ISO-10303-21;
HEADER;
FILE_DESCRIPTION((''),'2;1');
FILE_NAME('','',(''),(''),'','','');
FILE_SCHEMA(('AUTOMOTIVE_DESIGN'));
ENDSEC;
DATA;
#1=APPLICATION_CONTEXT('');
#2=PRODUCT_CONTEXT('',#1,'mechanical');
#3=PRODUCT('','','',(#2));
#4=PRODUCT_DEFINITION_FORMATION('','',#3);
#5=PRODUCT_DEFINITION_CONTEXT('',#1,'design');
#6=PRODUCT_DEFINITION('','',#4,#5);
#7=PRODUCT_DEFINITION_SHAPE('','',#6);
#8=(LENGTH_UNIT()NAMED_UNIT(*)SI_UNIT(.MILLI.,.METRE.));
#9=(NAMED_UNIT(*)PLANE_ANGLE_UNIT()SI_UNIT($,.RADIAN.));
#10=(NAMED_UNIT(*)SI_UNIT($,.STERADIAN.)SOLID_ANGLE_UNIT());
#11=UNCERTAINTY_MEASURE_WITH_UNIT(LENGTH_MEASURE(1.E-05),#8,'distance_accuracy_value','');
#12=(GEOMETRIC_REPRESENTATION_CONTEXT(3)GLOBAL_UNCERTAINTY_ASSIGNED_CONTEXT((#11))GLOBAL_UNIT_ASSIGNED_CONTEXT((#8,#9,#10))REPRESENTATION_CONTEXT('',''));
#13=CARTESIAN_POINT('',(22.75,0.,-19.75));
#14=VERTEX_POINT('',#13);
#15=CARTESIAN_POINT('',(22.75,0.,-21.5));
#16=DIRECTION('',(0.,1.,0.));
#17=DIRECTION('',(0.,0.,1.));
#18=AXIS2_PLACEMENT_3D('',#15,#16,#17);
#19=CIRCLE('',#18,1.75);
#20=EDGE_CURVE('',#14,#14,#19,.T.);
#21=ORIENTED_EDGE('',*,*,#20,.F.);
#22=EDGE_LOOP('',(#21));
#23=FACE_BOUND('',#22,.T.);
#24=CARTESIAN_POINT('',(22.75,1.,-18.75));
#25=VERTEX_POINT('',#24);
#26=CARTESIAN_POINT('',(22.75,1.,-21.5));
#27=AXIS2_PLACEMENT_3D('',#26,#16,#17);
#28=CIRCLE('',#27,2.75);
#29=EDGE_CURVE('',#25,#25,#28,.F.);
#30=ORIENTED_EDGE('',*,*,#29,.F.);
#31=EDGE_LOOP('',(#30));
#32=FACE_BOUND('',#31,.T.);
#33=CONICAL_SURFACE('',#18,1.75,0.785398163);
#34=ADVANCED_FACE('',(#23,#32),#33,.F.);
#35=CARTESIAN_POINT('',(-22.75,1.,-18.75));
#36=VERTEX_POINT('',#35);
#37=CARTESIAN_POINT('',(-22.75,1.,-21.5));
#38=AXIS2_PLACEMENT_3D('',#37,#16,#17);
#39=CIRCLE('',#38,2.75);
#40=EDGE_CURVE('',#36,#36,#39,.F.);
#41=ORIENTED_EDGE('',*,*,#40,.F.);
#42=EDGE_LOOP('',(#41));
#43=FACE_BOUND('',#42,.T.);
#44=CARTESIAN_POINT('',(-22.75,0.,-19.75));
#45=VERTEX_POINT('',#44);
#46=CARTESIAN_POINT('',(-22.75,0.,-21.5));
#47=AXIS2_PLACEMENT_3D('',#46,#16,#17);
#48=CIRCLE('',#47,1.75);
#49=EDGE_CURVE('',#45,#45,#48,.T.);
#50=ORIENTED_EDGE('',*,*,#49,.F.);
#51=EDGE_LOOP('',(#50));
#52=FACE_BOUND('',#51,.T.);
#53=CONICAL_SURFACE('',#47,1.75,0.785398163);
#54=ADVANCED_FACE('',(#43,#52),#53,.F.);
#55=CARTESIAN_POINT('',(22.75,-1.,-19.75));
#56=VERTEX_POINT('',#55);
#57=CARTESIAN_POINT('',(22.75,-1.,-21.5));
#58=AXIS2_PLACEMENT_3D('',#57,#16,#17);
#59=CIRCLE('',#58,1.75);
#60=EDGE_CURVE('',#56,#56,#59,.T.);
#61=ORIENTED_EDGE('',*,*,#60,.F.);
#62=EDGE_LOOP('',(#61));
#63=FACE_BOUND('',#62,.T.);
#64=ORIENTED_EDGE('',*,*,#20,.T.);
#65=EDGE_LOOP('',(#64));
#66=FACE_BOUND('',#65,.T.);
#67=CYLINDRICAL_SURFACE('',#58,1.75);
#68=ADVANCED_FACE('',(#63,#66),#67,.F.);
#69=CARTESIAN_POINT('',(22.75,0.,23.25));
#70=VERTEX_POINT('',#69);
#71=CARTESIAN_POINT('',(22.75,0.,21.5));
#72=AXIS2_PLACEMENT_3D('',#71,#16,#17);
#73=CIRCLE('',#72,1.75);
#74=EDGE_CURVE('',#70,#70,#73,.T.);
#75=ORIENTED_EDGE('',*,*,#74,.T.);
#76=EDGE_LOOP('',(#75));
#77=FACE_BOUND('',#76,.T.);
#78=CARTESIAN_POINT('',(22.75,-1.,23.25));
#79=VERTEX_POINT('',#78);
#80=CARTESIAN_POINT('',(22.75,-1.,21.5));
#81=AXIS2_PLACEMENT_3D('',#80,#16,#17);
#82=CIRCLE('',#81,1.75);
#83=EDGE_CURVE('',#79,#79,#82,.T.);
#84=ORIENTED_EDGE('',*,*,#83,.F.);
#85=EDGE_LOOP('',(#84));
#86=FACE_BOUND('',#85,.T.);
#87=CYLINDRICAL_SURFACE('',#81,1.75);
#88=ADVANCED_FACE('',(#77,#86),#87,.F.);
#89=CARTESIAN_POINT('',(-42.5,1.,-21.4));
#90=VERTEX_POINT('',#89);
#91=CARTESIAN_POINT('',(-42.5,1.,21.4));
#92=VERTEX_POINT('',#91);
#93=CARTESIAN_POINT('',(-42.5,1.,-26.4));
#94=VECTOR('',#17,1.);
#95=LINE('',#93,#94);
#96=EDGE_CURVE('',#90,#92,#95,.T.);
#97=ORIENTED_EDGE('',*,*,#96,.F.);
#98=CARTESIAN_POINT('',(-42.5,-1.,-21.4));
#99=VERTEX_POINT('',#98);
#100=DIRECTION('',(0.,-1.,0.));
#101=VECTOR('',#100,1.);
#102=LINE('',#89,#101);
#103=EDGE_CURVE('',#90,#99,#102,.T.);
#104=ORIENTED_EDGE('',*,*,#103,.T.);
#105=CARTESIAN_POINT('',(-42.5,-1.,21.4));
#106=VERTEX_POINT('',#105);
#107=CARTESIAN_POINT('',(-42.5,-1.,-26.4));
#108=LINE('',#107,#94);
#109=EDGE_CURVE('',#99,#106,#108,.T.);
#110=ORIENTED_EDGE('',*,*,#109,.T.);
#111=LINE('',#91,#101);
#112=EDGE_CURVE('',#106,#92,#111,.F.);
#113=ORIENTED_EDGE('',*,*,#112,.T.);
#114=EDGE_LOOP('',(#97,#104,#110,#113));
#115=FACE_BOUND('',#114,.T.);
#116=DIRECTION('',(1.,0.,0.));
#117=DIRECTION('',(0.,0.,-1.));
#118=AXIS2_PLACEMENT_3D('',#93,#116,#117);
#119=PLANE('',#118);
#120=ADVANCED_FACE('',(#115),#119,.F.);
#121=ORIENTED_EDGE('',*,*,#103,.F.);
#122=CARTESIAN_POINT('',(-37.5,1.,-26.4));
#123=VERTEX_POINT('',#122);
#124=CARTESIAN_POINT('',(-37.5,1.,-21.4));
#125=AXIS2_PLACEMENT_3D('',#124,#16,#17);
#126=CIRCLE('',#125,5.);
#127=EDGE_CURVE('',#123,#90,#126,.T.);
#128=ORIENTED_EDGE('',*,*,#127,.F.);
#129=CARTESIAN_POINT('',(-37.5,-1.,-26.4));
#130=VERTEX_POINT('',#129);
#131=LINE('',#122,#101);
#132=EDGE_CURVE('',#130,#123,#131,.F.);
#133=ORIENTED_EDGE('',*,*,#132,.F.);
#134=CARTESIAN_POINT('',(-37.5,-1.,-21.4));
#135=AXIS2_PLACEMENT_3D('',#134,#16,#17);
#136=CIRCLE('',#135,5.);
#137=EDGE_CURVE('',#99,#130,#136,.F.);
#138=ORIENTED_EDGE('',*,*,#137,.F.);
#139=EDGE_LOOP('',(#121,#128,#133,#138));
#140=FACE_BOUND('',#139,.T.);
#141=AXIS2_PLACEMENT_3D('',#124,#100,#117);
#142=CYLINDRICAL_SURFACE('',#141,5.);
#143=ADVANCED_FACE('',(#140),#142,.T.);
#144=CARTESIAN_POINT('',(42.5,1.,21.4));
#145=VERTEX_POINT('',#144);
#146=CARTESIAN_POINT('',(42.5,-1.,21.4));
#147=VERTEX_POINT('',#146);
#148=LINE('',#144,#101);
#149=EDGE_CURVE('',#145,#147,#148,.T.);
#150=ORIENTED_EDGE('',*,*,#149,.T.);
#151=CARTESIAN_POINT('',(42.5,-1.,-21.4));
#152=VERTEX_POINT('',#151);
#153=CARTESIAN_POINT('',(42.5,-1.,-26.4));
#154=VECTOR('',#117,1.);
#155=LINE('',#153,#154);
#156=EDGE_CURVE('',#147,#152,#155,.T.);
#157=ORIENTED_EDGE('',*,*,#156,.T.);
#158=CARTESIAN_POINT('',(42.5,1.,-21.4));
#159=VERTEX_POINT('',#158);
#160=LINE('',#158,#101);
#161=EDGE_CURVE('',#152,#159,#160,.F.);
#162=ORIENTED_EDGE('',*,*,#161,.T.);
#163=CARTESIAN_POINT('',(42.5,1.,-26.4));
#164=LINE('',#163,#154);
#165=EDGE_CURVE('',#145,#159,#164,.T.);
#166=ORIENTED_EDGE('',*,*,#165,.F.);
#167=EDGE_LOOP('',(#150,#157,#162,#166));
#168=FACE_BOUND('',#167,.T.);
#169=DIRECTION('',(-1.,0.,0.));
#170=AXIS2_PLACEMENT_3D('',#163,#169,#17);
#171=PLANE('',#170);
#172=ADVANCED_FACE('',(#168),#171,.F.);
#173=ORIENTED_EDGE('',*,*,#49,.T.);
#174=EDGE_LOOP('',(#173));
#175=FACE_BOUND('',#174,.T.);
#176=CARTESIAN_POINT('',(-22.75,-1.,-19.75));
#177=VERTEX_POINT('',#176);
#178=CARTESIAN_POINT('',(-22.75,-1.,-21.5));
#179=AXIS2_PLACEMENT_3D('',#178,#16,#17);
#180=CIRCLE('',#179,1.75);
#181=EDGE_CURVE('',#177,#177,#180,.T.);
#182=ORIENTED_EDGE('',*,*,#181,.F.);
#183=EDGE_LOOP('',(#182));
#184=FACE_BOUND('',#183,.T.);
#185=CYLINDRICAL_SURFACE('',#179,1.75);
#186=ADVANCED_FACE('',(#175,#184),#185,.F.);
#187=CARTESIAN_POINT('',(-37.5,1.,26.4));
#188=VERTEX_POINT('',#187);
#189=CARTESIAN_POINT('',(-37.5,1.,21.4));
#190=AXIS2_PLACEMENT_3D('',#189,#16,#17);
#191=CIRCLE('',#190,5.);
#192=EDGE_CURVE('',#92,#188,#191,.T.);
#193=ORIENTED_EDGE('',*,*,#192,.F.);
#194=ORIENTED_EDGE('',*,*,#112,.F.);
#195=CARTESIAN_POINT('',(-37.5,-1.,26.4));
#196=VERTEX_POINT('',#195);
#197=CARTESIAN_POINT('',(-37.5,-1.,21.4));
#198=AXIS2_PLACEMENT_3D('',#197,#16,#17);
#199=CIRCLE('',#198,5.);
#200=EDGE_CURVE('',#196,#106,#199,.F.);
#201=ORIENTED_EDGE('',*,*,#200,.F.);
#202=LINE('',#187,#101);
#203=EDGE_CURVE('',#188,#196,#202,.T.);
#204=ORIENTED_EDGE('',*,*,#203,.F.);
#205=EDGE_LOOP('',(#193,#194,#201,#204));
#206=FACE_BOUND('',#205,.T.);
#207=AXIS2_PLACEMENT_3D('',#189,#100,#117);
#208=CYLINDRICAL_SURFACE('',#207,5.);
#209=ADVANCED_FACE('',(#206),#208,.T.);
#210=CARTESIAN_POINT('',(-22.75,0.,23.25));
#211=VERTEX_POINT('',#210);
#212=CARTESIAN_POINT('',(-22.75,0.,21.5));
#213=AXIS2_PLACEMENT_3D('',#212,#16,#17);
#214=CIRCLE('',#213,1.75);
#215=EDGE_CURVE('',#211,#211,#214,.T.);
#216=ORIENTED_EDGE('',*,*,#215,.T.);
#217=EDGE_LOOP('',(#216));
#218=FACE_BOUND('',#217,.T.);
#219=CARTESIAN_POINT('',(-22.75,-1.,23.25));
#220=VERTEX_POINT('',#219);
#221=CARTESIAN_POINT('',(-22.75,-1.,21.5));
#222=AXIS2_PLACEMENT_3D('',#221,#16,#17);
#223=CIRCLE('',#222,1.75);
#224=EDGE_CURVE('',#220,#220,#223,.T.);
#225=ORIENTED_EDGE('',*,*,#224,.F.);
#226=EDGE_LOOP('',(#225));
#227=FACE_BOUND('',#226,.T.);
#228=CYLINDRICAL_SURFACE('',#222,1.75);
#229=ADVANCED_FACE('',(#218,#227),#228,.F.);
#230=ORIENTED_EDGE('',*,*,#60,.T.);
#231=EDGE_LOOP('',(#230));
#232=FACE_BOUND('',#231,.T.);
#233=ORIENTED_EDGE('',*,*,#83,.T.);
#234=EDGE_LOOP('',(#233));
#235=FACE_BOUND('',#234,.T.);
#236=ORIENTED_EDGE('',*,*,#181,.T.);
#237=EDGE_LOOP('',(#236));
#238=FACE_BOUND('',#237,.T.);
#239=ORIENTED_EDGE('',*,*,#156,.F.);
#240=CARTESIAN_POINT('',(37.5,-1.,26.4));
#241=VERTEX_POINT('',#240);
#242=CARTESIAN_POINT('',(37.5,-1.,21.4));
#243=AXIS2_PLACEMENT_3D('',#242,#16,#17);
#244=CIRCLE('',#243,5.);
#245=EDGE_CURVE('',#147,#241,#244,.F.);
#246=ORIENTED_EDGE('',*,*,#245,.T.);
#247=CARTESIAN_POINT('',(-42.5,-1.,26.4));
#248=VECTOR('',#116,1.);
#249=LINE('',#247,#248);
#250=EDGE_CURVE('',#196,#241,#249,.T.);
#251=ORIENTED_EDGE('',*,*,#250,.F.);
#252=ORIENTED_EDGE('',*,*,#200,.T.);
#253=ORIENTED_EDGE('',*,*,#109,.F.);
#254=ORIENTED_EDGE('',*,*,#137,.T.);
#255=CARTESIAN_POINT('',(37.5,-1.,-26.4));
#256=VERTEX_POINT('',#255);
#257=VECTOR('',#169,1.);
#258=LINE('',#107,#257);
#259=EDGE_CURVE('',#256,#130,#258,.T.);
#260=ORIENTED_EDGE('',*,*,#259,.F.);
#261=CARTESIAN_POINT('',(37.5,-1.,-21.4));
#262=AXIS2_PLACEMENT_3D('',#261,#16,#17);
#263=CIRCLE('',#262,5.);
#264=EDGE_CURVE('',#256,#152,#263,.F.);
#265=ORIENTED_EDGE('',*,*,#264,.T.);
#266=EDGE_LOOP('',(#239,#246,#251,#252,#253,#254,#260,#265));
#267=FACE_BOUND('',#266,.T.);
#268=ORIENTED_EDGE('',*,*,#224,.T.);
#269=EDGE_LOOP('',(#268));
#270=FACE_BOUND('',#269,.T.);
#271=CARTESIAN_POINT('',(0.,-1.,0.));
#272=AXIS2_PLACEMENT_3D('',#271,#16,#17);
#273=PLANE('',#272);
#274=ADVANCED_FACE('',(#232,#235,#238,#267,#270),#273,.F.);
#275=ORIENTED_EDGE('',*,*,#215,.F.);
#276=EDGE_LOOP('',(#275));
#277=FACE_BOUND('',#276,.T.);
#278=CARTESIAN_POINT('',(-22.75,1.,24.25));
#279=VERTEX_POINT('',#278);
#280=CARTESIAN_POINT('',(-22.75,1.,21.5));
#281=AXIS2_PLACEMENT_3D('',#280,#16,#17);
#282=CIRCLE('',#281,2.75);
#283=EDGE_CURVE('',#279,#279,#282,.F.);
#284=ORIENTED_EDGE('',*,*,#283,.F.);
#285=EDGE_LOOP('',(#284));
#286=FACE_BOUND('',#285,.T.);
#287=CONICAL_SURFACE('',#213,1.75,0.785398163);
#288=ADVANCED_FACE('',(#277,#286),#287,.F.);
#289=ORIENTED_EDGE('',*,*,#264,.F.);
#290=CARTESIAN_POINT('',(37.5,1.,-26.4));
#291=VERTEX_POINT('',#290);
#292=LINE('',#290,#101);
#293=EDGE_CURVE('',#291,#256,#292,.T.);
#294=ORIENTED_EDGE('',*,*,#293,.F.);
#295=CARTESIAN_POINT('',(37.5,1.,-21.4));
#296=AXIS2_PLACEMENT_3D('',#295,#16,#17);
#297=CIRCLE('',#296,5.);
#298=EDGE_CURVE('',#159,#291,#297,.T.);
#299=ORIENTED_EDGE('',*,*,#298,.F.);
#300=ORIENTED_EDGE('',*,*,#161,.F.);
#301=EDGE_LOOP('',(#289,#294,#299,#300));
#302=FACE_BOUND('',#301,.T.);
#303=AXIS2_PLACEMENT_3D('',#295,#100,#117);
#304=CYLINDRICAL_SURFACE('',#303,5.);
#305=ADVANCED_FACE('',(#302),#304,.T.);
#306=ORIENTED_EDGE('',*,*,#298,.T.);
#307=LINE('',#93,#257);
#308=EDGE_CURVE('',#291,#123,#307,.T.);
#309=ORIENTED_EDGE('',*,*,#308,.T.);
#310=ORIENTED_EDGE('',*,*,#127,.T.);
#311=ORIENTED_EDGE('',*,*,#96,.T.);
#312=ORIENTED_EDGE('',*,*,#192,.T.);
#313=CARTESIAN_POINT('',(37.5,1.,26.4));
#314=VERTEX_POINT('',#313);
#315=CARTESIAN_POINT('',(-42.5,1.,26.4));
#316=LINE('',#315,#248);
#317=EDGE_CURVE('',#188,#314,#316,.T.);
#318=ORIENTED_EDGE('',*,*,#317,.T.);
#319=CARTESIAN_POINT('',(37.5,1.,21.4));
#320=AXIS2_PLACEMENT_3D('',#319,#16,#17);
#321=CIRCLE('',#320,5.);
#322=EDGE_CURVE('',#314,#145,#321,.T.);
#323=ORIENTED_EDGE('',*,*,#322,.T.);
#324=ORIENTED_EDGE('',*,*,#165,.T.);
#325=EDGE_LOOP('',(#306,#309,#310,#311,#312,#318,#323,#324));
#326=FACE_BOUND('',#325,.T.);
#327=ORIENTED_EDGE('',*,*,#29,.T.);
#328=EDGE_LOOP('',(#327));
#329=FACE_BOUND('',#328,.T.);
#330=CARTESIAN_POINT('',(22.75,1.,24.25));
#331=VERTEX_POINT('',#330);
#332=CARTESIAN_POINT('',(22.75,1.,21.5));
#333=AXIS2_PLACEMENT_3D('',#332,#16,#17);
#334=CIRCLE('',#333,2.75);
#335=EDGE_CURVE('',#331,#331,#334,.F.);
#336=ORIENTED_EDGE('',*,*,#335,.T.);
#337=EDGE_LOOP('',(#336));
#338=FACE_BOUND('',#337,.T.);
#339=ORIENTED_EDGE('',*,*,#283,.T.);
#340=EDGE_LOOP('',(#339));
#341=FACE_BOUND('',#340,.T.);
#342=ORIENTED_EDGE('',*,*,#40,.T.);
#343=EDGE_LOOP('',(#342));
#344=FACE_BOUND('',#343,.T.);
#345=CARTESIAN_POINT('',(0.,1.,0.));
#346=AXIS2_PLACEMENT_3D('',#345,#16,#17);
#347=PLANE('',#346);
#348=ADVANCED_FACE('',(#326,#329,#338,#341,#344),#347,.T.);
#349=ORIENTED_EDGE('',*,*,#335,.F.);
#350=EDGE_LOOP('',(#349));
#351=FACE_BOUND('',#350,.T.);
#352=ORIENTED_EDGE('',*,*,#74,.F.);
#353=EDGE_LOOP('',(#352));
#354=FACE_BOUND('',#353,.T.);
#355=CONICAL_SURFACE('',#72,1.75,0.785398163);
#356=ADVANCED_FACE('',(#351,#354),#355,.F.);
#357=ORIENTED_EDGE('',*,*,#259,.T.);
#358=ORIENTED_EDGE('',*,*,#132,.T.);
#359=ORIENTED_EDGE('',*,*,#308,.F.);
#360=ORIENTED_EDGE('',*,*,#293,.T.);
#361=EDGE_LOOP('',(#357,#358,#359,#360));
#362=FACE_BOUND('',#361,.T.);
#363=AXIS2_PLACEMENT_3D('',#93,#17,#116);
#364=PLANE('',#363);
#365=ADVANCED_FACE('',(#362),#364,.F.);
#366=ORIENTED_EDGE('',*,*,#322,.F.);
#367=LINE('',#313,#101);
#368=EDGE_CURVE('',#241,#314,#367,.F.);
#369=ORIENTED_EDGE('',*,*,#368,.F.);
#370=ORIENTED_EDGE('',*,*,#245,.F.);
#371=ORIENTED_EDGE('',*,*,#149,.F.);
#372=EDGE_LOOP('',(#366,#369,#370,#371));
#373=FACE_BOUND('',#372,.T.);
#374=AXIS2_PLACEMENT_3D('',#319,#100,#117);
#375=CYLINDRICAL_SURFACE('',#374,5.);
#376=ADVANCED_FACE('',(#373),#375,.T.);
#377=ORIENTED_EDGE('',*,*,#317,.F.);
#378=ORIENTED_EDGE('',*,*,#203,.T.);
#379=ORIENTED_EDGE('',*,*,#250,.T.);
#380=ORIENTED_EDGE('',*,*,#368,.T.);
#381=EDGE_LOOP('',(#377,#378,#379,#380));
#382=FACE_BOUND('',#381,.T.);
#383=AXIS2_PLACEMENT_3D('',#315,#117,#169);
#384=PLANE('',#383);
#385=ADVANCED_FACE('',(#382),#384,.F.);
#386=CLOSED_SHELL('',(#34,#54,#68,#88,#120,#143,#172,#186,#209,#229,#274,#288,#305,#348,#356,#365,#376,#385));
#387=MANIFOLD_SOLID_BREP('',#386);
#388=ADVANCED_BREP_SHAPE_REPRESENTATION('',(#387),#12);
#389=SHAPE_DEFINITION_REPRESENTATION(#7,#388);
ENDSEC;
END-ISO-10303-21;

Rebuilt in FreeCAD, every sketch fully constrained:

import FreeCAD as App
import Part
import Sketcher
from FreeCAD import Vector


def edges_at(feature, points):
    """Names of the edges that pass closest to the given points."""
    edges = feature.Shape.Edges
    near = lambda p: min(range(len(edges)), key=lambda i: edges[i].distToShape(Part.Vertex(*p))[0])
    return sorted({f"Edge{near(p) + 1}" for p in points})

doc = App.newDocument("Part")
body = doc.addObject("PartDesign::Body", "Body")

sketch1 = body.newObject("Sketcher::SketchObject", "Sketch")
sketch1.AttachmentSupport = (doc.getObject("XZ_Plane"), [""])
sketch1.MapMode = "FlatFace"
sketch1.addGeometry([
    Part.LineSegment(Vector(-42, -26, 0), Vector(-42, 26, 0)),
    Part.LineSegment(Vector(-42, 26, 0), Vector(42, 26, 0)),
    Part.LineSegment(Vector(42, 26, 0), Vector(42, -26, 0)),
    Part.LineSegment(Vector(42, -26, 0), Vector(-42, -26, 0)),
], False)
sketch1.addConstraint([
    Sketcher.Constraint("Coincident", 0, 2, 1, 1),
    Sketcher.Constraint("Coincident", 1, 2, 2, 1),
    Sketcher.Constraint("Coincident", 2, 2, 3, 1),
    Sketcher.Constraint("Coincident", 3, 2, 0, 1),
    Sketcher.Constraint("Vertical", 0),
    Sketcher.Constraint("Horizontal", 1),
    Sketcher.Constraint("Vertical", 2),
    Sketcher.Constraint("Horizontal", 3),
    Sketcher.Constraint("Symmetric", 0, 2, 2, 2, -1, 1),
    Sketcher.Constraint("DistanceX", 1, 1, 1, 2, 85.0),
    Sketcher.Constraint("DistanceY", 0, 1, 0, 2, 52.8),
])
pad1 = body.newObject("PartDesign::Pad", "Pad")
pad1.Profile = sketch1
pad1.Length = 2
pad1.Midplane = True

sketch2 = body.newObject("Sketcher::SketchObject", "Sketch001")
sketch2.AttachmentSupport = (doc.getObject("XZ_Plane"), [""])
sketch2.MapMode = "FlatFace"
sketch2.AttachmentOffset = App.Placement(Vector(0, 0, -1), App.Rotation())
sketch2.addGeometry([
    Part.Circle(Vector(-22.8, -21.5, 0), Vector(0, 0, 1), 1.8),
    Part.Circle(Vector(22.8, -21.5, 0), Vector(0, 0, 1), 1.8),
    Part.Circle(Vector(22.8, 21.5, 0), Vector(0, 0, 1), 1.8),
    Part.Circle(Vector(-22.8, 21.5, 0), Vector(0, 0, 1), 1.8),
], False)
sketch2.addConstraint([
    Sketcher.Constraint("Equal", 0, 1),
    Sketcher.Constraint("Equal", 1, 2),
    Sketcher.Constraint("Equal", 2, 3),
    Sketcher.Constraint("Symmetric", 0, 3, 2, 3, -1, 1),
    Sketcher.Constraint("Symmetric", 1, 3, 3, 3, -1, 1),
    Sketcher.Constraint("Symmetric", 0, 3, 1, 3, -2),
    Sketcher.Constraint("Diameter", 0, 3.5),
    Sketcher.Constraint("DistanceY", 1, 3, 2, 3, 43.0),
    Sketcher.Constraint("DistanceX", 0, 3, 1, 3, 45.5),
])
pocket1 = body.newObject("PartDesign::Pocket", "Pocket")
pocket1.Profile = sketch2
pocket1.Length = 2
pocket1.Reversed = True
doc.recompute()

chamfer = body.newObject("PartDesign::Chamfer", "Chamfer")
chamfer.Base = (pocket1, edges_at(pocket1, [
    (-22.75, 1, 19.75),
    (22.75, 1, 19.75),
    (22.75, 1, -23.25),
    (-22.75, 1, -23.25),
]))
chamfer.Size = 1
doc.recompute()

fillet = body.newObject("PartDesign::Fillet", "Fillet")
fillet.Base = (chamfer, edges_at(chamfer, [
    (42.5, 0, 26.4),
    (-42.5, 0, 26.4),
    (-42.5, 0, -26.4),
    (42.5, 0, -26.4),
]))
fillet.Radius = 5

doc.recompute()
